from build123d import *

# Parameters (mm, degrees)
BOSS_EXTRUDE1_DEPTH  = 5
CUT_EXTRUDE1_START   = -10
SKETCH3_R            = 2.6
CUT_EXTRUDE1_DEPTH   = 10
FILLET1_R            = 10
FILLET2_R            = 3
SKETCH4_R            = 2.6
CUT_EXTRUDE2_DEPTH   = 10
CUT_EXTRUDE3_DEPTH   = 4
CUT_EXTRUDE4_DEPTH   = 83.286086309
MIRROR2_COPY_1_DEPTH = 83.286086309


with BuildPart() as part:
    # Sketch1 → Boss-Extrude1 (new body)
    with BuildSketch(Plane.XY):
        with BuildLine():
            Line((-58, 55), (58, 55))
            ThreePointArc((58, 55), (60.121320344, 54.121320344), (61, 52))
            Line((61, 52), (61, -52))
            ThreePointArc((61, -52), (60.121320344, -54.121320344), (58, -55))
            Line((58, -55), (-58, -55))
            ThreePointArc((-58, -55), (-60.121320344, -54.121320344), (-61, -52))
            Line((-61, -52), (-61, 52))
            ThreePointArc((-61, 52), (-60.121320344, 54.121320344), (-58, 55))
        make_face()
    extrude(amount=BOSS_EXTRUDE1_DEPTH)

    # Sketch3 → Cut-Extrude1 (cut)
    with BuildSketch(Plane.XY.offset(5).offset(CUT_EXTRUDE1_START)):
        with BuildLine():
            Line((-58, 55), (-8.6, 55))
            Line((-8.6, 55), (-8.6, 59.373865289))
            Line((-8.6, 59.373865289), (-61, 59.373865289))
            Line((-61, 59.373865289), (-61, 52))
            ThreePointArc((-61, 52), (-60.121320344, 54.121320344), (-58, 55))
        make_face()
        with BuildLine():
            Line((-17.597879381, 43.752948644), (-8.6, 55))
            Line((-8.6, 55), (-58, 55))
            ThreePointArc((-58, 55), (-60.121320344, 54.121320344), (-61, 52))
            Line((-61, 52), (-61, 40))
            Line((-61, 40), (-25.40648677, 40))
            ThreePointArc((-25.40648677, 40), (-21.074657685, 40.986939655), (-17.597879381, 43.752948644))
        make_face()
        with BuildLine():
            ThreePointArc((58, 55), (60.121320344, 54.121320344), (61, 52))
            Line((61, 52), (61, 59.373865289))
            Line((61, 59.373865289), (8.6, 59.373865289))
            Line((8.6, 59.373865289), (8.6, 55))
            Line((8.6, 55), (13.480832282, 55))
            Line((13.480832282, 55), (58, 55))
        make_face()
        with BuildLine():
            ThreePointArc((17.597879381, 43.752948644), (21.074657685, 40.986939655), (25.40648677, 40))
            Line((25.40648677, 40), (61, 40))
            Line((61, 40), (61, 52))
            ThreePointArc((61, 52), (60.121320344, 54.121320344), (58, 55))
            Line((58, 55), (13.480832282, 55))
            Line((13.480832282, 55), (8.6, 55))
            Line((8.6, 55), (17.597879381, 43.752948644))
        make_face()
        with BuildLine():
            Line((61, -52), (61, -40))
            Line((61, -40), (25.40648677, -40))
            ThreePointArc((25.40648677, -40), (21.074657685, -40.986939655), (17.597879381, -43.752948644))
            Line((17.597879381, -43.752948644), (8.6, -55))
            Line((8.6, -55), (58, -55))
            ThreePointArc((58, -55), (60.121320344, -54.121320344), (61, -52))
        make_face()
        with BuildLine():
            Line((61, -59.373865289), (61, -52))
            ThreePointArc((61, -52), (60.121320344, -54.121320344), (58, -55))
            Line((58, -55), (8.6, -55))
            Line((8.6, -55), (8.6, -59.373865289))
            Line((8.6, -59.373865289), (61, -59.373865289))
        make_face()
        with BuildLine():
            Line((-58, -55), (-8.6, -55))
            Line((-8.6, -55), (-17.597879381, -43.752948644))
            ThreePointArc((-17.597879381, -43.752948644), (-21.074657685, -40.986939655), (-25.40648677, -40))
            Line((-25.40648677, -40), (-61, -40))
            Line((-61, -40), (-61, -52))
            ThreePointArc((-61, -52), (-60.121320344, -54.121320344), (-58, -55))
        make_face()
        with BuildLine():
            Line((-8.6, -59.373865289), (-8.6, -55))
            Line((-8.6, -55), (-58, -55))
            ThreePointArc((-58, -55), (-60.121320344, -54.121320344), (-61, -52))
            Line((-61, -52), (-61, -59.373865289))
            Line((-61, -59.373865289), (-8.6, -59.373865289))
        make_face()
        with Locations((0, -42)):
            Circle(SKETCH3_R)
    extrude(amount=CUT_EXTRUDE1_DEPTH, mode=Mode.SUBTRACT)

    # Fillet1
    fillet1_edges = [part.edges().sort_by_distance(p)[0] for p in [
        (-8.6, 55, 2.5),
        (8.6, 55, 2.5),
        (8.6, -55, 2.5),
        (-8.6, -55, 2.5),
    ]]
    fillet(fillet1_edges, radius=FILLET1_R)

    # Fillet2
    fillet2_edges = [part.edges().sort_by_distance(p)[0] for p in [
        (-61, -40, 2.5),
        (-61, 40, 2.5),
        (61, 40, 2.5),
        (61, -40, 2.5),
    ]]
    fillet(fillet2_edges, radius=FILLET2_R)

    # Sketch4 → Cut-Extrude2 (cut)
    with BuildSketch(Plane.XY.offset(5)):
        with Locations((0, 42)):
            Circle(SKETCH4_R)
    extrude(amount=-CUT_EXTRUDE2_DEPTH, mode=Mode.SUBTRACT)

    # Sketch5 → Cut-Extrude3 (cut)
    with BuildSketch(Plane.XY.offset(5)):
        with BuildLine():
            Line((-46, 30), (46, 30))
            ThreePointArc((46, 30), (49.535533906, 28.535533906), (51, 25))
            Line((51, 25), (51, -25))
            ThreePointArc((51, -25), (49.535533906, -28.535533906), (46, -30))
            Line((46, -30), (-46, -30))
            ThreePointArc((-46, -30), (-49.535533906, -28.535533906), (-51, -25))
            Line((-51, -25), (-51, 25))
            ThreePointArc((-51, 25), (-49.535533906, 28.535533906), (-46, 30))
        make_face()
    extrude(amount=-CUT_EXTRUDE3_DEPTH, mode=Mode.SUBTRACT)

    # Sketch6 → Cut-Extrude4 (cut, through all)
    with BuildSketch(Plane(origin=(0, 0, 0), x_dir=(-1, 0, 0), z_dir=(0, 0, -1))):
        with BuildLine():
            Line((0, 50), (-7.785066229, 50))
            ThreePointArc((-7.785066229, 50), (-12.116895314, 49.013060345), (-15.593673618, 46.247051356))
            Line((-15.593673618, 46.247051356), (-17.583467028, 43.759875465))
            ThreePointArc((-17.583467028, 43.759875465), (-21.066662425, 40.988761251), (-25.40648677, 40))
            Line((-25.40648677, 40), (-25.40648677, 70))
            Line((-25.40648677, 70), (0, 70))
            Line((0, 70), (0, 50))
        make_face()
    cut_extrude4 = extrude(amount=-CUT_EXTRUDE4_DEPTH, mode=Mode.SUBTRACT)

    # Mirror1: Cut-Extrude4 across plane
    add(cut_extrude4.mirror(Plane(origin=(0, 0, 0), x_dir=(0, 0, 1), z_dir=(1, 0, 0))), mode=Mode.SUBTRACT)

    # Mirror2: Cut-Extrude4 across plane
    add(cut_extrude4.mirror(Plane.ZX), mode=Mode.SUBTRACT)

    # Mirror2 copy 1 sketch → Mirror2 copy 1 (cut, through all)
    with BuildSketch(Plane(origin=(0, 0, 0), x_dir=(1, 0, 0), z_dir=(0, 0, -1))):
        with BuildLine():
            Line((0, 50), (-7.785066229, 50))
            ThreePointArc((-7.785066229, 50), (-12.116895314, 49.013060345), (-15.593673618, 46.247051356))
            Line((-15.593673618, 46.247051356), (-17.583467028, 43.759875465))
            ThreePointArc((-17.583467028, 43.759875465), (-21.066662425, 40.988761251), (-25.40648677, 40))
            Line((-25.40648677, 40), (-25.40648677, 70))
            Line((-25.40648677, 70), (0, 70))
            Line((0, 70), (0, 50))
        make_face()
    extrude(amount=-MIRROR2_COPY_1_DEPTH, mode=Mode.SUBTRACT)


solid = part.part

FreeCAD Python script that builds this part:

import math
import FreeCAD as App
import Part
import Sketcher
from FreeCAD import Vector


def edges_at(feature, points):
    """Names of the edges that pass closest to the given points."""
    edges = feature.Shape.Edges
    near = lambda p: min(range(len(edges)), key=lambda i: edges[i].distToShape(Part.Vertex(*p))[0])
    return sorted({f"Edge{near(p) + 1}" for p in points})

doc = App.newDocument("Part")
body = doc.addObject("PartDesign::Body", "Body")

sketch1 = body.newObject("Sketcher::SketchObject", "Sketch")
sketch1.AttachmentSupport = (doc.getObject("XY_Plane"), [""])
sketch1.MapMode = "FlatFace"
sketch1.addGeometry(Part.LineSegment(Vector(58, 55, 0), Vector(-58, 55, 0)), False)
sketch1.addGeometry(Part.ArcOfCircle(Part.Circle(Vector(-58, 52, 0), Vector(0, 0, 1), 3), math.radians(90), math.radians(180)), False)
sketch1.addGeometry(Part.LineSegment(Vector(-61, 52, 0), Vector(-61, -52, 0)), False)
sketch1.addGeometry(Part.ArcOfCircle(Part.Circle(Vector(-58, -52, 0), Vector(0, 0, 1), 3), math.radians(180), math.radians(270)), False)
sketch1.addGeometry(Part.LineSegment(Vector(-58, -55, 0), Vector(58, -55, 0)), False)
sketch1.addGeometry(Part.ArcOfCircle(Part.Circle(Vector(58, -52, 0), Vector(0, 0, 1), 3), math.radians(-90), math.radians(0)), False)
sketch1.addGeometry(Part.LineSegment(Vector(61, -52, 0), Vector(61, 52, 0)), False)
sketch1.addGeometry(Part.ArcOfCircle(Part.Circle(Vector(58, 52, 0), Vector(0, 0, 1), 3), math.radians(0), math.radians(90)), False)
sketch1.addConstraint(Sketcher.Constraint("Tangent", 0, 2, 1, 1))
sketch1.addConstraint(Sketcher.Constraint("Tangent", 1, 2, 2, 1))
sketch1.addConstraint(Sketcher.Constraint("Tangent", 2, 2, 3, 1))
sketch1.addConstraint(Sketcher.Constraint("Tangent", 3, 2, 4, 1))
sketch1.addConstraint(Sketcher.Constraint("Tangent", 4, 2, 5, 1))
sketch1.addConstraint(Sketcher.Constraint("Tangent", 5, 2, 6, 1))
sketch1.addConstraint(Sketcher.Constraint("Tangent", 6, 2, 7, 1))
sketch1.addConstraint(Sketcher.Constraint("Tangent", 7, 2, 0, 1))
sketch1.addConstraint(Sketcher.Constraint("Horizontal", 0))
sketch1.addConstraint(Sketcher.Constraint("Vertical", 2))
sketch1.addConstraint(Sketcher.Constraint("Horizontal", 4))
sketch1.addConstraint(Sketcher.Constraint("Vertical", 6))
sketch1.addConstraint(Sketcher.Constraint("Equal", 1, 3))
sketch1.addConstraint(Sketcher.Constraint("Equal", 3, 5))
sketch1.addConstraint(Sketcher.Constraint("Equal", 5, 7))
sketch1.addConstraint(Sketcher.Constraint("Symmetric", 1, 3, 5, 3, -1, 1))
sketch1.addConstraint(Sketcher.Constraint("Radius", 1, 3.0))
sketch1.addConstraint(Sketcher.Constraint("DistanceX", 0, 2, 0, 1, 116.0))
sketch1.addConstraint(Sketcher.Constraint("DistanceY", 2, 2, 2, 1, 104.0))
pad1 = body.newObject("PartDesign::Pad", "Pad")
pad1.Profile = sketch1
pad1.Length = 5

sketch2 = body.newObject("Sketcher::SketchObject", "Sketch001")
sketch2.AttachmentSupport = (doc.getObject("XY_Plane"), [""])
sketch2.MapMode = "FlatFace"
sketch2.AttachmentOffset = App.Placement(Vector(0, 0, -5), App.Rotation())
sketch2.addGeometry(Part.LineSegment(Vector(-8.6, 55, 0), Vector(-8.6, 59.4, 0)), False)
sketch2.addGeometry(Part.LineSegment(Vector(-8.6, 59.4, 0), Vector(-61, 59.4, 0)), False)
sketch2.addGeometry(Part.LineSegment(Vector(-61, 59.4, 0), Vector(-61, 40, 0)), False)
sketch2.addGeometry(Part.LineSegment(Vector(-61, 40, 0), Vector(-25.4, 40, 0)), False)
sketch2.addGeometry(Part.ArcOfCircle(Part.Circle(Vector(-25.4, 50, 0), Vector(0, 0, 1), 10), math.radians(-90), math.radians(-39)), False)
sketch2.addGeometry(Part.LineSegment(Vector(-17.6, 43.8, 0), Vector(-8.6, 55, 0)), False)
sketch2.addGeometry(Part.LineSegment(Vector(61, 59.4, 0), Vector(8.6, 59.4, 0)), False)
sketch2.addGeometry(Part.LineSegment(Vector(8.6, 59.4, 0), Vector(8.6, 55, 0)), False)
sketch2.addGeometry(Part.LineSegment(Vector(8.6, 55, 0), Vector(17.6, 43.8, 0)), False)
sketch2.addGeometry(Part.ArcOfCircle(Part.Circle(Vector(25.4, 50, 0), Vector(0, 0, 1), 10), math.radians(-141), math.radians(-90)), False)
sketch2.addGeometry(Part.LineSegment(Vector(25.4, 40, 0), Vector(61, 40, 0)), False)
sketch2.addGeometry(Part.LineSegment(Vector(61, 40, 0), Vector(61, 59.4, 0)), False)
sketch2.addGeometry(Part.LineSegment(Vector(61, -40, 0), Vector(25.4, -40, 0)), False)
sketch2.addGeometry(Part.ArcOfCircle(Part.Circle(Vector(25.4, -50, 0), Vector(0, 0, 1), 10), math.radians(90), math.radians(141)), False)
sketch2.addGeometry(Part.LineSegment(Vector(17.6, -43.8, 0), Vector(8.6, -55, 0)), False)
sketch2.addGeometry(Part.LineSegment(Vector(8.6, -55, 0), Vector(8.6, -59.4, 0)), False)
sketch2.addGeometry(Part.LineSegment(Vector(8.6, -59.4, 0), Vector(61, -59.4, 0)), False)
sketch2.addGeometry(Part.LineSegment(Vector(61, -59.4, 0), Vector(61, -40, 0)), False)
sketch2.addGeometry(Part.LineSegment(Vector(-8.6, -55, 0), Vector(-17.6, -43.8, 0)), False)
sketch2.addGeometry(Part.ArcOfCircle(Part.Circle(Vector(-25.4, -50, 0), Vector(0, 0, 1), 10), math.radians(39), math.radians(90)), False)
sketch2.addGeometry(Part.LineSegment(Vector(-25.4, -40, 0), Vector(-61, -40, 0)), False)
sketch2.addGeometry(Part.LineSegment(Vector(-61, -40, 0), Vector(-61, -59.4, 0)), False)
sketch2.addGeometry(Part.LineSegment(Vector(-61, -59.4, 0), Vector(-8.6, -59.4, 0)), False)
sketch2.addGeometry(Part.LineSegment(Vector(-8.6, -59.4, 0), Vector(-8.6, -55, 0)), False)
sketch2.addGeometry(Part.Circle(Vector(0, -42, 0), Vector(0, 0, 1), 2.6), False)
sketch2.addConstraint(Sketcher.Constraint("Coincident", 0, 2, 1, 1))
sketch2.addConstraint(Sketcher.Constraint("Coincident", 1, 2, 2, 1))
sketch2.addConstraint(Sketcher.Constraint("Coincident", 2, 2, 3, 1))
sketch2.addConstraint(Sketcher.Constraint("Tangent", 3, 2, 4, 1))
sketch2.addConstraint(Sketcher.Constraint("Tangent", 4, 2, 5, 1))
sketch2.addConstraint(Sketcher.Constraint("Coincident", 5, 2, 0, 1))
sketch2.addConstraint(Sketcher.Constraint("Coincident", 6, 2, 7, 1))
sketch2.addConstraint(Sketcher.Constraint("Coincident", 7, 2, 8, 1))
sketch2.addConstraint(Sketcher.Constraint("Tangent", 8, 2, 9, 1))
sketch2.addConstraint(Sketcher.Constraint("Tangent", 9, 2, 10, 1))
sketch2.addConstraint(Sketcher.Constraint("Coincident", 10, 2, 11, 1))
sketch2.addConstraint(Sketcher.Constraint("Coincident", 11, 2, 6, 1))
sketch2.addConstraint(Sketcher.Constraint("Tangent", 12, 2, 13, 1))
sketch2.addConstraint(Sketcher.Constraint("Tangent", 13, 2, 14, 1))
sketch2.addConstraint(Sketcher.Constraint("Coincident", 14, 2, 15, 1))
sketch2.addConstraint(Sketcher.Constraint("Coincident", 15, 2, 16, 1))
sketch2.addConstraint(Sketcher.Constraint("Coincident", 16, 2, 17, 1))
sketch2.addConstraint(Sketcher.Constraint("Coincident", 17, 2, 12, 1))
sketch2.addConstraint(Sketcher.Constraint("Tangent", 18, 2, 19, 1))
sketch2.addConstraint(Sketcher.Constraint("Tangent", 19, 2, 20, 1))
sketch2.addConstraint(Sketcher.Constraint("Coincident", 20, 2, 21, 1))
sketch2.addConstraint(Sketcher.Constraint("Coincident", 21, 2, 22, 1))
sketch2.addConstraint(Sketcher.Constraint("Coincident", 22, 2, 23, 1))
sketch2.addConstraint(Sketcher.Constraint("Coincident", 23, 2, 18, 1))
sketch2.addConstraint(Sketcher.Constraint("Vertical", 0))
sketch2.addConstraint(Sketcher.Constraint("Horizontal", 1))
sketch2.addConstraint(Sketcher.Constraint("Vertical", 2))
sketch2.addConstraint(Sketcher.Constraint("Horizontal", 3))
sketch2.addConstraint(Sketcher.Constraint("Horizontal", 6))
sketch2.addConstraint(Sketcher.Constraint("Vertical", 7))
sketch2.addConstraint(Sketcher.Constraint("Horizontal", 10))
sketch2.addConstraint(Sketcher.Constraint("Vertical", 11))
sketch2.addConstraint(Sketcher.Constraint("Horizontal", 12))
sketch2.addConstraint(Sketcher.Constraint("Vertical", 15))
sketch2.addConstraint(Sketcher.Constraint("Horizontal", 16))
sketch2.addConstraint(Sketcher.Constraint("Vertical", 17))
sketch2.addConstraint(Sketcher.Constraint("Horizontal", 20))
sketch2.addConstraint(Sketcher.Constraint("Vertical", 21))
sketch2.addConstraint(Sketcher.Constraint("Horizontal", 22))
sketch2.addConstraint(Sketcher.Constraint("Vertical", 23))
sketch2.addConstraint(Sketcher.Constraint("Equal", 4, 9))
sketch2.addConstraint(Sketcher.Constraint("Equal", 9, 13))
sketch2.addConstraint(Sketcher.Constraint("Equal", 13, 19))
sketch2.addConstraint(Sketcher.Constraint("Symmetric", 4, 3, 13, 3, -1, 1))
sketch2.addConstraint(Sketcher.Constraint("Symmetric", 9, 3, 19, 3, -1, 1))
sketch2.addConstraint(Sketcher.Constraint("Symmetric", 5, 2, 14, 2, -1, 1))
sketch2.addConstraint(Sketcher.Constraint("Symmetric", 1, 2, 16, 2, -1, 1))
sketch2.addConstraint(Sketcher.Constraint("Symmetric", 11, 2, 21, 2, -1, 1))
sketch2.addConstraint(Sketcher.Constraint("Symmetric", 7, 2, 23, 2, -1, 1))
sketch2.addConstraint(Sketcher.Constraint("Symmetric", 4, 3, 9, 3, -2))
sketch2.addConstraint(Sketcher.Constraint("Symmetric", 0, 2, 6, 2, -2))
sketch2.addConstraint(Sketcher.Constraint("PointOnObject", 24, 3, -2))
sketch2.addConstraint(Sketcher.Constraint("Horizontal", 5, 2, 7, 2))
sketch2.addConstraint(Sketcher.Constraint("Vertical", 11, 2, 16, 2))
sketch2.addConstraint(Sketcher.Constraint("Radius", 4, 10.0))
sketch2.addConstraint(Sketcher.Constraint("Diameter", 24, 5.2))
sketch2.addConstraint(Sketcher.Constraint("DistanceX", 1, 2, 1, 1, 52.4))
sketch2.addConstraint(Sketcher.Constraint("DistanceY", -1, 1, 4, 3, 50.0))
sketch2.addConstraint(Sketcher.Constraint("DistanceY", 24, 3, -1, 1, 42.0))
sketch2.addConstraint(Sketcher.Constraint("DistanceX", 1, 2, -1, 1, 61.0))
sketch2.addConstraint(Sketcher.Constraint("DistanceY", -1, 1, 5, 2, 55.0))
sketch2.addConstraint(Sketcher.Constraint("DistanceX", 3, 1, 3, 2, 35.593513))
sketch2.addConstraint(Sketcher.Constraint("DistanceY", 0, 1, 0, 2, 4.373865))
pocket1 = body.newObject("PartDesign::Pocket", "Pocket")
pocket1.Profile = sketch2
pocket1.Length = 10
pocket1.Reversed = True
doc.recompute()

fillet = body.newObject("PartDesign::Fillet", "Fillet")
fillet.Base = (pocket1, edges_at(pocket1, [
    (-8.6, 55, 2.5),
    (8.6, 55, 2.5),
    (8.6, -55, 2.5),
    (-8.6, -55, 2.5),
]))
fillet.Radius = 10
doc.recompute()

fillet2 = body.newObject("PartDesign::Fillet", "Fillet001")
fillet2.Base = (fillet, edges_at(fillet, [
    (-61, -40, 2.5),
    (-61, 40, 2.5),
    (61, 40, 2.5),
    (61, -40, 2.5),
]))
fillet2.Radius = 3

sketch3 = body.newObject("Sketcher::SketchObject", "Sketch002")
sketch3.AttachmentSupport = (doc.getObject("XY_Plane"), [""])
sketch3.MapMode = "FlatFace"
sketch3.AttachmentOffset = App.Placement(Vector(0, 0, 5), App.Rotation())
sketch3.addGeometry(Part.Circle(Vector(0, 42, 0), Vector(0, 0, 1), 2.6), False)
sketch3.addConstraint(Sketcher.Constraint("PointOnObject", 0, 3, -2))
sketch3.addConstraint(Sketcher.Constraint("Diameter", 0, 5.2))
sketch3.addConstraint(Sketcher.Constraint("DistanceY", -1, 1, 0, 3, 42.0))
pocket2 = body.newObject("PartDesign::Pocket", "Pocket001")
pocket2.Profile = sketch3
pocket2.Length = 10

sketch4 = body.newObject("Sketcher::SketchObject", "Sketch003")
sketch4.AttachmentSupport = (doc.getObject("XY_Plane"), [""])
sketch4.MapMode = "FlatFace"
sketch4.AttachmentOffset = App.Placement(Vector(0, 0, 5), App.Rotation())
sketch4.addGeometry(Part.LineSegment(Vector(46, 30, 0), Vector(-46, 30, 0)), False)
sketch4.addGeometry(Part.ArcOfCircle(Part.Circle(Vector(-46, 25, 0), Vector(0, 0, 1), 5), math.radians(90), math.radians(180)), False)
sketch4.addGeometry(Part.LineSegment(Vector(-51, 25, 0), Vector(-51, -25, 0)), False)
sketch4.addGeometry(Part.ArcOfCircle(Part.Circle(Vector(-46, -25, 0), Vector(0, 0, 1), 5), math.radians(180), math.radians(270)), False)
sketch4.addGeometry(Part.LineSegment(Vector(-46, -30, 0), Vector(46, -30, 0)), False)
sketch4.addGeometry(Part.ArcOfCircle(Part.Circle(Vector(46, -25, 0), Vector(0, 0, 1), 5), math.radians(-90), math.radians(0)), False)
sketch4.addGeometry(Part.LineSegment(Vector(51, -25, 0), Vector(51, 25, 0)), False)
sketch4.addGeometry(Part.ArcOfCircle(Part.Circle(Vector(46, 25, 0), Vector(0, 0, 1), 5), math.radians(0), math.radians(90)), False)
sketch4.addConstraint(Sketcher.Constraint("Tangent", 0, 2, 1, 1))
sketch4.addConstraint(Sketcher.Constraint("Tangent", 1, 2, 2, 1))
sketch4.addConstraint(Sketcher.Constraint("Tangent", 2, 2, 3, 1))
sketch4.addConstraint(Sketcher.Constraint("Tangent", 3, 2, 4, 1))
sketch4.addConstraint(Sketcher.Constraint("Tangent", 4, 2, 5, 1))
sketch4.addConstraint(Sketcher.Constraint("Tangent", 5, 2, 6, 1))
sketch4.addConstraint(Sketcher.Constraint("Tangent", 6, 2, 7, 1))
sketch4.addConstraint(Sketcher.Constraint("Tangent", 7, 2, 0, 1))
sketch4.addConstraint(Sketcher.Constraint("Horizontal", 0))
sketch4.addConstraint(Sketcher.Constraint("Vertical", 2))
sketch4.addConstraint(Sketcher.Constraint("Horizontal", 4))
sketch4.addConstraint(Sketcher.Constraint("Vertical", 6))
sketch4.addConstraint(Sketcher.Constraint("Equal", 1, 3))
sketch4.addConstraint(Sketcher.Constraint("Equal", 3, 5))
sketch4.addConstraint(Sketcher.Constraint("Equal", 5, 7))
sketch4.addConstraint(Sketcher.Constraint("Symmetric", 1, 3, 5, 3, -1, 1))
sketch4.addConstraint(Sketcher.Constraint("Radius", 1, 5.0))
sketch4.addConstraint(Sketcher.Constraint("DistanceX", 0, 2, 0, 1, 92.0))
sketch4.addConstraint(Sketcher.Constraint("DistanceY", 2, 2, 2, 1, 50.0))
pocket3 = body.newObject("PartDesign::Pocket", "Pocket002")
pocket3.Profile = sketch4
pocket3.Length = 4

sketch5 = body.newObject("Sketcher::SketchObject", "Sketch004")
sketch5.AttachmentSupport = (doc.getObject("XY_Plane"), [""])
sketch5.MapMode = "FlatFace"
sketch5.addGeometry(Part.LineSegment(Vector(7.8, 50, 0), Vector(0, 50, 0)), False)
sketch5.addGeometry(Part.LineSegment(Vector(0, 50, 0), Vector(0, 70, 0)), False)
sketch5.addGeometry(Part.LineSegment(Vector(0, 70, 0), Vector(25.4, 70, 0)), False)
sketch5.addGeometry(Part.LineSegment(Vector(25.4, 70, 0), Vector(25.4, 40, 0)), False)
sketch5.addGeometry(Part.ArcOfCircle(Part.Circle(Vector(25.4, 50, 0), Vector(0, 0, 1), 10), math.radians(-141), math.radians(-90)), False)
sketch5.addGeometry(Part.LineSegment(Vector(17.6, 43.8, 0), Vector(15.6, 46.2, 0)), False)
sketch5.addGeometry(Part.ArcOfCircle(Part.Circle(Vector(7.8, 40, 0), Vector(0, 0, 1), 10), math.radians(39), math.radians(90)), False)
sketch5.addConstraint(Sketcher.Constraint("Coincident", 0, 2, 1, 1))
sketch5.addConstraint(Sketcher.Constraint("Coincident", 1, 2, 2, 1))
sketch5.addConstraint(Sketcher.Constraint("Coincident", 2, 2, 3, 1))
sketch5.addConstraint(Sketcher.Constraint("Coincident", 3, 2, 4, 2))
sketch5.addConstraint(Sketcher.Constraint("Tangent", 4, 1, 5, 1))
sketch5.addConstraint(Sketcher.Constraint("Tangent", 5, 2, 6, 1))
sketch5.addConstraint(Sketcher.Constraint("Tangent", 6, 2, 0, 1))
sketch5.addConstraint(Sketcher.Constraint("Horizontal", 0))
sketch5.addConstraint(Sketcher.Constraint("Vertical", 1))
sketch5.addConstraint(Sketcher.Constraint("Horizontal", 2))
sketch5.addConstraint(Sketcher.Constraint("Vertical", 3))
sketch5.addConstraint(Sketcher.Constraint("PointOnObject", 0, 2, -2))
sketch5.addConstraint(Sketcher.Constraint("Horizontal", 6, 3, 3, 2))
sketch5.addConstraint(Sketcher.Constraint("Vertical", 4, 3, 2, 2))
sketch5.addConstraint(Sketcher.Constraint("Radius", 6, 10.0))
sketch5.addConstraint(Sketcher.Constraint("DistanceY", 1, 1, 1, 2, 20.0))
sketch5.addConstraint(Sketcher.Constraint("DistanceY", -1, 1, 6, 3, 40.0))
sketch5.addConstraint(Sketcher.Constraint("Radius", 4, 10.018457))
sketch5.addConstraint(Sketcher.Constraint("DistanceX", 6, 3, 4, 1, 9.798401))
sketch5.addConstraint(Sketcher.Constraint("DistanceX", 0, 2, 0, 1, 7.785066))
pocket4 = body.newObject("PartDesign::Pocket", "Pocket003")
pocket4.Profile = sketch5
pocket4.Type = "ThroughAll"
pocket4.Reversed = True
doc.recompute()

mirrored = body.newObject("PartDesign::Mirrored", "Mirrored")
mirrored.Originals = [pocket4]
mirrored.MirrorPlane = (doc.getObject("YZ_Plane"), [""])
body.Tip = mirrored
doc.recompute()

mirrored2 = body.newObject("PartDesign::Mirrored", "Mirrored001")
mirrored2.Originals = [pocket4]
mirrored2.MirrorPlane = (doc.getObject("XZ_Plane"), [""])
body.Tip = mirrored2

sketch6 = body.newObject("Sketcher::SketchObject", "Sketch005")
sketch6.AttachmentSupport = (doc.getObject("XY_Plane"), [""])
sketch6.MapMode = "FlatFace"
sketch6.addGeometry(Part.LineSegment(Vector(-7.8, -50, 0), Vector(0, -50, 0)), False)
sketch6.addGeometry(Part.LineSegment(Vector(0, -50, 0), Vector(0, -70, 0)), False)
sketch6.addGeometry(Part.LineSegment(Vector(0, -70, 0), Vector(-25.4, -70, 0)), False)
sketch6.addGeometry(Part.LineSegment(Vector(-25.4, -70, 0), Vector(-25.4, -40, 0)), False)
sketch6.addGeometry(Part.ArcOfCircle(Part.Circle(Vector(-25.4, -50, 0), Vector(0, 0, 1), 10), math.radians(39), math.radians(90)), False)
sketch6.addGeometry(Part.LineSegment(Vector(-17.6, -43.8, 0), Vector(-15.6, -46.2, 0)), False)
sketch6.addGeometry(Part.ArcOfCircle(Part.Circle(Vector(-7.8, -40, 0), Vector(0, 0, 1), 10), math.radians(-141), math.radians(-90)), False)
sketch6.addConstraint(Sketcher.Constraint("Coincident", 0, 2, 1, 1))
sketch6.addConstraint(Sketcher.Constraint("Coincident", 1, 2, 2, 1))
sketch6.addConstraint(Sketcher.Constraint("Coincident", 2, 2, 3, 1))
sketch6.addConstraint(Sketcher.Constraint("Coincident", 3, 2, 4, 2))
sketch6.addConstraint(Sketcher.Constraint("Tangent", 4, 1, 5, 1))
sketch6.addConstraint(Sketcher.Constraint("Tangent", 5, 2, 6, 1))
sketch6.addConstraint(Sketcher.Constraint("Tangent", 6, 2, 0, 1))
sketch6.addConstraint(Sketcher.Constraint("Horizontal", 0))
sketch6.addConstraint(Sketcher.Constraint("Vertical", 1))
sketch6.addConstraint(Sketcher.Constraint("Horizontal", 2))
sketch6.addConstraint(Sketcher.Constraint("Vertical", 3))
sketch6.addConstraint(Sketcher.Constraint("PointOnObject", 0, 2, -2))
sketch6.addConstraint(Sketcher.Constraint("Horizontal", 6, 3, 3, 2))
sketch6.addConstraint(Sketcher.Constraint("Vertical", 4, 3, 2, 2))
sketch6.addConstraint(Sketcher.Constraint("Radius", 6, 10.0))
sketch6.addConstraint(Sketcher.Constraint("DistanceY", 1, 2, 1, 1, 20.0))
sketch6.addConstraint(Sketcher.Constraint("DistanceY", 6, 3, -1, 1, 40.0))
sketch6.addConstraint(Sketcher.Constraint("Radius", 4, 10.018457))
sketch6.addConstraint(Sketcher.Constraint("DistanceX", 4, 1, 6, 3, 9.798401))
sketch6.addConstraint(Sketcher.Constraint("DistanceX", 0, 1, 0, 2, 7.785066))
pocket5 = body.newObject("PartDesign::Pocket", "Pocket004")
pocket5.Profile = sketch6
pocket5.Type = "ThroughAll"
pocket5.Reversed = True

doc.recompute()
